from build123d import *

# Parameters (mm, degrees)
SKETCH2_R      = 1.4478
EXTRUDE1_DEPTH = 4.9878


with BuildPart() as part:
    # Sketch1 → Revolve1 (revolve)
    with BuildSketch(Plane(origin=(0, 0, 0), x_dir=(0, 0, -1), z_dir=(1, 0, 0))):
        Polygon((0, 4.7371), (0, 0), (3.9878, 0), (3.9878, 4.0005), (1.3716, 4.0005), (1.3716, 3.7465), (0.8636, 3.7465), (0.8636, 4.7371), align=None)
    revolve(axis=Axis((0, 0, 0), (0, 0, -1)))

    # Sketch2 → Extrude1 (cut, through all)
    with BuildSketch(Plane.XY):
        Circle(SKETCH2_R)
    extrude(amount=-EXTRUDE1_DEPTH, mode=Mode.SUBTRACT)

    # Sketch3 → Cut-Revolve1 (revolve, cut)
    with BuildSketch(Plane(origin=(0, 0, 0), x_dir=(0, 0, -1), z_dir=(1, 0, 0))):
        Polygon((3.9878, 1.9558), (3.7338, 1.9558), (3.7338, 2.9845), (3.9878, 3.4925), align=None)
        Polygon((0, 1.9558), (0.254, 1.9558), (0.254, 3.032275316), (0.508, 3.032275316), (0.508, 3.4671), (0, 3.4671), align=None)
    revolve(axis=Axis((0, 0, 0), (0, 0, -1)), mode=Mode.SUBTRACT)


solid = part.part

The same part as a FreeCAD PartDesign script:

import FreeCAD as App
import Part
import Sketcher
from FreeCAD import Vector
Q = App.Units.Quantity


def add_polygon(sketch, points):
    """Adds a closed chain of lines whose ends are joined by coincident constraints."""
    first, n = sketch.GeometryCount, len(points)
    for a, b in zip(points, points[1:] + points[:1]):
        sketch.addGeometry(Part.LineSegment(App.Vector(*a, 0), App.Vector(*b, 0)), False)
    for i in range(n):
        sketch.addConstraint(Sketcher.Constraint("Coincident", first + i, 2, first + (i + 1) % n, 1))

doc = App.newDocument("Part")
body = doc.addObject("PartDesign::Body", "Body")

# Sketch on YZ plane
sketch1 = doc.addObject("Sketcher::SketchObject", "Sketch")
body.addObject(sketch1)
sketch1.AttachmentSupport = (doc.YZ_Plane, [""])
sketch1.MapMode = "FlatFace"
add_polygon(sketch1, [(4.7371, 0), (0, 0), (0, -3.9878), (4.0005, -3.9878), (4.0005, -1.3716), (3.7465, -1.3716), (3.7465, -0.8636), (4.7371, -0.8636)])  # lines 0-7
sketch1.addConstraint(Sketcher.Constraint("Horizontal", 0))
sketch1.addConstraint(Sketcher.Constraint("Vertical", 1))
sketch1.addConstraint(Sketcher.Constraint("Horizontal", 2))
sketch1.addConstraint(Sketcher.Constraint("Vertical", 3))
sketch1.addConstraint(Sketcher.Constraint("Horizontal", 4))
sketch1.addConstraint(Sketcher.Constraint("Vertical", 5))
sketch1.addConstraint(Sketcher.Constraint("Horizontal", 6))
sketch1.addConstraint(Sketcher.Constraint("Vertical", 7))
sketch1.addConstraint(Sketcher.Constraint("Coincident", 0, 2, -1, 1))
sketch1.addConstraint(Sketcher.Constraint("DistanceX", 4, 2, 4, 1, Q("0.01 in")))
sketch1.addConstraint(Sketcher.Constraint("DistanceY", 5, 1, 5, 2, Q("0.02 in")))
sketch1.addConstraint(Sketcher.Constraint("DistanceX", 6, 1, 6, 2, Q("0.039 in")))
sketch1.addConstraint(Sketcher.Constraint("DistanceY", 1, 2, 1, 1, Q("0.157 in")))
sketch1.addConstraint(Sketcher.Constraint("DistanceY", 3, 1, 3, 2, Q("0.103 in")))
sketch1.addConstraint(Sketcher.Constraint("DistanceX", 0, 2, 0, 1, Q("0.1865 in")))
revolution = doc.addObject("PartDesign::Revolution", "Revolution")
body.addObject(revolution)
revolution.Profile = sketch1
revolution.ReferenceAxis = (sketch1, ["V_Axis"])
revolution.Angle = 360

# Sketch on XY plane
sketch2 = doc.addObject("Sketcher::SketchObject", "Sketch001")
body.addObject(sketch2)
sketch2.AttachmentSupport = (doc.XY_Plane, [""])
sketch2.MapMode = "FlatFace"
sketch2.addGeometry(Part.Circle(Vector(0, 0, 0), Vector(0, 0, 1), 1.4478), False)
sketch2.addConstraint(Sketcher.Constraint("Coincident", 0, 3, -1, 1))
sketch2.addConstraint(Sketcher.Constraint("Diameter", 0, Q("0.114 in")))
pocket1 = doc.addObject("PartDesign::Pocket", "Pocket")
body.addObject(pocket1)
pocket1.Profile = sketch2
pocket1.Type = "ThroughAll"

# Sketch on YZ plane
sketch3 = doc.addObject("Sketcher::SketchObject", "Sketch002")
body.addObject(sketch3)
sketch3.AttachmentSupport = (doc.YZ_Plane, [""])
sketch3.MapMode = "FlatFace"
add_polygon(sketch3, [(1.9558, -3.7338), (1.9558, -3.9878), (3.4925, -3.9878), (2.9845, -3.7338)])  # lines 0-3
add_polygon(sketch3, [(1.9558, 0), (1.9558, -0.254), (3.032275, -0.254), (3.032275, -0.508), (3.4671, -0.508), (3.4671, 0)])  # lines 4-9
sketch3.addConstraint(Sketcher.Constraint("Vertical", 0))
sketch3.addConstraint(Sketcher.Constraint("Horizontal", 1))
sketch3.addConstraint(Sketcher.Constraint("Horizontal", 3))
sketch3.addConstraint(Sketcher.Constraint("Vertical", 4))
sketch3.addConstraint(Sketcher.Constraint("Horizontal", 5))
sketch3.addConstraint(Sketcher.Constraint("Vertical", 6))
sketch3.addConstraint(Sketcher.Constraint("Horizontal", 7))
sketch3.addConstraint(Sketcher.Constraint("Vertical", 8))
sketch3.addConstraint(Sketcher.Constraint("Horizontal", 9))
sketch3.addConstraint(Sketcher.Constraint("PointOnObject", 8, 2, -1))
sketch3.addConstraint(Sketcher.Constraint("Vertical", 3, 2, 4, 2))
sketch3.addConstraint(Sketcher.Constraint("Equal", 0, 4))
sketch3.addConstraint(Sketcher.Constraint("Equal", 4, 6))
sketch3.addConstraint(Sketcher.Constraint("DistanceY", 0, 2, 0, 1, Q("0.01 in")))
sketch3.addConstraint(Sketcher.Constraint("DistanceX", 2, 2, 1, 2, Q("0.02 in")))
sketch3.addConstraint(Sketcher.Constraint("DistanceX", 1, 1, 1, 2, Q("0.0605 in")))
sketch3.addConstraint(Sketcher.Constraint("DistanceX", 9, 2, 9, 1, Q("0.0595 in")))
sketch3.addConstraint(Sketcher.Constraint("DistanceX", -1, 1, 0, 2, Q("0.077 in")))
sketch3.addConstraint(Sketcher.Constraint("DistanceY", 0, 2, -1, 1, Q("0.157 in")))
sketch3.addConstraint(Sketcher.Constraint("DistanceX", 5, 1, 5, 2, Q("1.076475 mm")))
groove = doc.addObject("PartDesign::Groove", "Groove")
body.addObject(groove)
groove.Profile = sketch3
groove.ReferenceAxis = (sketch3, ["V_Axis"])
groove.Angle = 360

doc.recompute()
